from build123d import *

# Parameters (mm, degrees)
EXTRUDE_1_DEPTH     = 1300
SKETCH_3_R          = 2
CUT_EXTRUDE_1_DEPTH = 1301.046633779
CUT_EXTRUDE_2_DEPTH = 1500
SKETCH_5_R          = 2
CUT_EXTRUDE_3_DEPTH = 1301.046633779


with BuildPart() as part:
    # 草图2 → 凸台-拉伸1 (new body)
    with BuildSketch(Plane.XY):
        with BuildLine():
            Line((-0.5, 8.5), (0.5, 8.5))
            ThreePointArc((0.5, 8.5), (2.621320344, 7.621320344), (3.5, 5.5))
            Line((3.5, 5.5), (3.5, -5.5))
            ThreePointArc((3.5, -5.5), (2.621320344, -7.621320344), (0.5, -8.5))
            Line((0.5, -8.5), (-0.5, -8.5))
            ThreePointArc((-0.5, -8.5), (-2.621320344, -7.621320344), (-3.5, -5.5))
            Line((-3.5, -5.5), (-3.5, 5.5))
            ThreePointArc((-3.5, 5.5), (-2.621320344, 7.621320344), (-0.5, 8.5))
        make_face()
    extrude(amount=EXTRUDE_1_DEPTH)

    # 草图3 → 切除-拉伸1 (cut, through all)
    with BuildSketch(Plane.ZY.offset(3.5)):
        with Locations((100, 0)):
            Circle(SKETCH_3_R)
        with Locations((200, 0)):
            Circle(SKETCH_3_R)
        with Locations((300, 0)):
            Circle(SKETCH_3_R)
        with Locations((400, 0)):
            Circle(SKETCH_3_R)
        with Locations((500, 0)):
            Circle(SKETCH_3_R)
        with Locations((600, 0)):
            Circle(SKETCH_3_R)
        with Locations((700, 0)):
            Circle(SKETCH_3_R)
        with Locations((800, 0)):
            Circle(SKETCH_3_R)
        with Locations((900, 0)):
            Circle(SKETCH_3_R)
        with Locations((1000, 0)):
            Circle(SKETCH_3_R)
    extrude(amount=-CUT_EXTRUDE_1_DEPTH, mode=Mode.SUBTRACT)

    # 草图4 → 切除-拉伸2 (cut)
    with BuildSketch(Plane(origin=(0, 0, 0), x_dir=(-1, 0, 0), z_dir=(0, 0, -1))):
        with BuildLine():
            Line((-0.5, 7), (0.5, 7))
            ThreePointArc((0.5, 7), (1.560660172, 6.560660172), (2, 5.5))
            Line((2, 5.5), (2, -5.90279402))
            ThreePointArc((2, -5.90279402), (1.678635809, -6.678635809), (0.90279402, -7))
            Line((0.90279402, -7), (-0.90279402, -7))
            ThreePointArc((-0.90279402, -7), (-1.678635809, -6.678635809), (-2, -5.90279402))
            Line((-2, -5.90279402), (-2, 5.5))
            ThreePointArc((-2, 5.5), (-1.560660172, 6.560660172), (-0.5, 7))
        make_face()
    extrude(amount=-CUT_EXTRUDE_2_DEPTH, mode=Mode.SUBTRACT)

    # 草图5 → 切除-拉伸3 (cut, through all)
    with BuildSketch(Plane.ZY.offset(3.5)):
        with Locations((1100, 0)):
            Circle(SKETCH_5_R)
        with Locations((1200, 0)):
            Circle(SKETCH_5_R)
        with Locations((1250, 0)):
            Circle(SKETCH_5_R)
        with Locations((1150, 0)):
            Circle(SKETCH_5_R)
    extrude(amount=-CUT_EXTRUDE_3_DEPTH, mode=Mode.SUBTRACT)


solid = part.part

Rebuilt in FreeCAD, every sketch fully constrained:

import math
import FreeCAD as App
import Part
import Sketcher

V = App.Vector

doc = App.newDocument("Part")
body = doc.addObject("PartDesign::Body", "Body")

# Sketch on XY plane
sketch1 = body.newObject("Sketcher::SketchObject", "Sketch")
sketch1.AttachmentSupport = (doc.getObject("XY_Plane"), [""])
sketch1.MapMode = "FlatFace"
sketch1.addGeometry(Part.LineSegment(V(0.5, 8.5, 0), V(-0.5, 8.5, 0)), False)
sketch1.addGeometry(Part.ArcOfCircle(Part.Circle(V(-0.5, 5.5, 0), V(0, 0, 1), 3), math.radians(90), math.radians(180)), False)
sketch1.addGeometry(Part.LineSegment(V(-3.5, 5.5, 0), V(-3.5, -5.5, 0)), False)
sketch1.addGeometry(Part.ArcOfCircle(Part.Circle(V(-0.5, -5.5, 0), V(0, 0, 1), 3), math.radians(180), math.radians(270)), False)
sketch1.addGeometry(Part.LineSegment(V(-0.5, -8.5, 0), V(0.5, -8.5, 0)), False)
sketch1.addGeometry(Part.ArcOfCircle(Part.Circle(V(0.5, -5.5, 0), V(0, 0, 1), 3), math.radians(-90), math.radians(0)), False)
sketch1.addGeometry(Part.LineSegment(V(3.5, -5.5, 0), V(3.5, 5.5, 0)), False)
sketch1.addGeometry(Part.ArcOfCircle(Part.Circle(V(0.5, 5.5, 0), V(0, 0, 1), 3), math.radians(0), math.radians(90)), False)
sketch1.addConstraint(Sketcher.Constraint("Tangent", 0, 2, 1, 1))
sketch1.addConstraint(Sketcher.Constraint("Tangent", 1, 2, 2, 1))
sketch1.addConstraint(Sketcher.Constraint("Tangent", 2, 2, 3, 1))
sketch1.addConstraint(Sketcher.Constraint("Tangent", 3, 2, 4, 1))
sketch1.addConstraint(Sketcher.Constraint("Tangent", 4, 2, 5, 1))
sketch1.addConstraint(Sketcher.Constraint("Tangent", 5, 2, 6, 1))
sketch1.addConstraint(Sketcher.Constraint("Tangent", 6, 2, 7, 1))
sketch1.addConstraint(Sketcher.Constraint("Tangent", 7, 2, 0, 1))
sketch1.addConstraint(Sketcher.Constraint("Horizontal", 0))
sketch1.addConstraint(Sketcher.Constraint("Vertical", 2))
sketch1.addConstraint(Sketcher.Constraint("Horizontal", 4))
sketch1.addConstraint(Sketcher.Constraint("Vertical", 6))
sketch1.addConstraint(Sketcher.Constraint("Equal", 1, 3))
sketch1.addConstraint(Sketcher.Constraint("Equal", 3, 5))
sketch1.addConstraint(Sketcher.Constraint("Equal", 5, 7))
sketch1.addConstraint(Sketcher.Constraint("Symmetric", 1, 3, 5, 3, -1, 1))
sketch1.addConstraint(Sketcher.Constraint("Radius", 1, 3.0))
sketch1.addConstraint(Sketcher.Constraint("DistanceX", 0, 2, 0, 1, 1.0))
sketch1.addConstraint(Sketcher.Constraint("DistanceY", 2, 2, 2, 1, 11.0))
pad1 = body.newObject("PartDesign::Pad", "Pad")
pad1.Profile = sketch1
pad1.Length = 1300

# Sketch on YZ plane
sketch2 = body.newObject("Sketcher::SketchObject", "Sketch001")
sketch2.AttachmentSupport = (doc.getObject("YZ_Plane"), [""])
sketch2.MapMode = "FlatFace"
sketch2.AttachmentOffset = App.Placement(V(0, 0, -3.5), App.Rotation())
sketch2.addGeometry(Part.Circle(V(0, 100, 0), V(0, 0, 1), 2), False)
sketch2.addGeometry(Part.Circle(V(0, 200, 0), V(0, 0, 1), 2), False)
sketch2.addGeometry(Part.Circle(V(0, 300, 0), V(0, 0, 1), 2), False)
sketch2.addGeometry(Part.Circle(V(0, 400, 0), V(0, 0, 1), 2), False)
sketch2.addGeometry(Part.Circle(V(0, 500, 0), V(0, 0, 1), 2), False)
sketch2.addGeometry(Part.Circle(V(0, 600, 0), V(0, 0, 1), 2), False)
sketch2.addGeometry(Part.Circle(V(0, 700, 0), V(0, 0, 1), 2), False)
sketch2.addGeometry(Part.Circle(V(0, 800, 0), V(0, 0, 1), 2), False)
sketch2.addGeometry(Part.Circle(V(0, 900, 0), V(0, 0, 1), 2), False)
sketch2.addGeometry(Part.Circle(V(0, 1000, 0), V(0, 0, 1), 2), False)
sketch2.addConstraint(Sketcher.Constraint("Equal", 0, 1))
sketch2.addConstraint(Sketcher.Constraint("Equal", 1, 2))
sketch2.addConstraint(Sketcher.Constraint("Equal", 2, 3))
sketch2.addConstraint(Sketcher.Constraint("Equal", 3, 4))
sketch2.addConstraint(Sketcher.Constraint("Equal", 4, 5))
sketch2.addConstraint(Sketcher.Constraint("Equal", 5, 6))
sketch2.addConstraint(Sketcher.Constraint("Equal", 6, 7))
sketch2.addConstraint(Sketcher.Constraint("Equal", 7, 8))
sketch2.addConstraint(Sketcher.Constraint("Equal", 8, 9))
sketch2.addConstraint(Sketcher.Constraint("PointOnObject", 0, 3, -2))
sketch2.addConstraint(Sketcher.Constraint("PointOnObject", 1, 3, -2))
sketch2.addConstraint(Sketcher.Constraint("PointOnObject", 2, 3, -2))
sketch2.addConstraint(Sketcher.Constraint("PointOnObject", 3, 3, -2))
sketch2.addConstraint(Sketcher.Constraint("PointOnObject", 4, 3, -2))
sketch2.addConstraint(Sketcher.Constraint("PointOnObject", 5, 3, -2))
sketch2.addConstraint(Sketcher.Constraint("PointOnObject", 6, 3, -2))
sketch2.addConstraint(Sketcher.Constraint("PointOnObject", 7, 3, -2))
sketch2.addConstraint(Sketcher.Constraint("PointOnObject", 8, 3, -2))
sketch2.addConstraint(Sketcher.Constraint("PointOnObject", 9, 3, -2))
sketch2.addConstraint(Sketcher.Constraint("Diameter", 0, 4.0))
sketch2.addConstraint(Sketcher.Constraint("DistanceY", -1, 1, 0, 3, 100.0))
sketch2.addConstraint(Sketcher.Constraint("DistanceY", -1, 1, 1, 3, 200.0))
sketch2.addConstraint(Sketcher.Constraint("DistanceY", -1, 1, 2, 3, 300.0))
sketch2.addConstraint(Sketcher.Constraint("DistanceY", -1, 1, 3, 3, 400.0))
sketch2.addConstraint(Sketcher.Constraint("DistanceY", -1, 1, 4, 3, 500.0))
sketch2.addConstraint(Sketcher.Constraint("DistanceY", -1, 1, 5, 3, 600.0))
sketch2.addConstraint(Sketcher.Constraint("DistanceY", -1, 1, 6, 3, 700.0))
sketch2.addConstraint(Sketcher.Constraint("DistanceY", -1, 1, 7, 3, 800.0))
sketch2.addConstraint(Sketcher.Constraint("DistanceY", -1, 1, 8, 3, 900.0))
sketch2.addConstraint(Sketcher.Constraint("DistanceY", -1, 1, 9, 3, 1000.0))
pocket1 = body.newObject("PartDesign::Pocket", "Pocket")
pocket1.Profile = sketch2
pocket1.Type = "ThroughAll"
pocket1.Reversed = True

# Sketch on XY plane
sketch3 = body.newObject("Sketcher::SketchObject", "Sketch002")
sketch3.AttachmentSupport = (doc.getObject("XY_Plane"), [""])
sketch3.MapMode = "FlatFace"
sketch3.addGeometry(Part.LineSegment(V(-0.5, 7, 0), V(0.5, 7, 0)), False)
sketch3.addGeometry(Part.ArcOfCircle(Part.Circle(V(0.5, 5.5, 0), V(0, 0, 1), 1.5), math.radians(0), math.radians(90)), False)
sketch3.addGeometry(Part.LineSegment(V(2, 5.5, 0), V(2, -5.9, 0)), False)
sketch3.addGeometry(Part.ArcOfCircle(Part.Circle(V(0.9, -5.9, 0), V(0, 0, 1), 1.1), math.radians(-90), math.radians(0)), False)
sketch3.addGeometry(Part.LineSegment(V(0.9, -7, 0), V(-0.9, -7, 0)), False)
sketch3.addGeometry(Part.ArcOfCircle(Part.Circle(V(-0.9, -5.9, 0), V(0, 0, 1), 1.1), math.radians(180), math.radians(270)), False)
sketch3.addGeometry(Part.LineSegment(V(-2, -5.9, 0), V(-2, 5.5, 0)), False)
sketch3.addGeometry(Part.ArcOfCircle(Part.Circle(V(-0.5, 5.5, 0), V(0, 0, 1), 1.5), math.radians(90), math.radians(180)), False)
sketch3.addConstraint(Sketcher.Constraint("Tangent", 0, 2, 1, 2))
sketch3.addConstraint(Sketcher.Constraint("Tangent", 1, 1, 2, 1))
sketch3.addConstraint(Sketcher.Constraint("Tangent", 2, 2, 3, 2))
sketch3.addConstraint(Sketcher.Constraint("Tangent", 3, 1, 4, 1))
sketch3.addConstraint(Sketcher.Constraint("Tangent", 4, 2, 5, 2))
sketch3.addConstraint(Sketcher.Constraint("Tangent", 5, 1, 6, 1))
sketch3.addConstraint(Sketcher.Constraint("Tangent", 6, 2, 7, 2))
sketch3.addConstraint(Sketcher.Constraint("Tangent", 7, 1, 0, 1))
sketch3.addConstraint(Sketcher.Constraint("Horizontal", 0))
sketch3.addConstraint(Sketcher.Constraint("Vertical", 2))
sketch3.addConstraint(Sketcher.Constraint("Horizontal", 4))
sketch3.addConstraint(Sketcher.Constraint("Vertical", 6))
sketch3.addConstraint(Sketcher.Constraint("Equal", 3, 5))
sketch3.addConstraint(Sketcher.Constraint("Equal", 1, 7))
sketch3.addConstraint(Sketcher.Constraint("Radius", 1, 1.5))
sketch3.addConstraint(Sketcher.Constraint("DistanceX", 0, 1, 0, 2, 1.0))
sketch3.addConstraint(Sketcher.Constraint("DistanceY", -1, 1, 0, 2, 7.0))
sketch3.addConstraint(Sketcher.Constraint("DistanceX", -1, 1, 1, 1, 2.0))
sketch3.addConstraint(Sketcher.Constraint("DistanceY", 3, 1, -1, 1, 7.0))
sketch3.addConstraint(Sketcher.Constraint("Radius", 3, 1.097206))
pocket2 = body.newObject("PartDesign::Pocket", "Pocket001")
pocket2.Profile = sketch3
pocket2.Length = 1500
pocket2.Reversed = True

# Sketch on YZ plane
sketch4 = body.newObject("Sketcher::SketchObject", "Sketch003")
sketch4.AttachmentSupport = (doc.getObject("YZ_Plane"), [""])
sketch4.MapMode = "FlatFace"
sketch4.AttachmentOffset = App.Placement(V(0, 0, -3.5), App.Rotation())
sketch4.addGeometry(Part.Circle(V(0, 1100, 0), V(0, 0, 1), 2), False)
sketch4.addGeometry(Part.Circle(V(0, 1200, 0), V(0, 0, 1), 2), False)
sketch4.addGeometry(Part.Circle(V(0, 1250, 0), V(0, 0, 1), 2), False)
sketch4.addGeometry(Part.Circle(V(0, 1150, 0), V(0, 0, 1), 2), False)
sketch4.addConstraint(Sketcher.Constraint("Equal", 0, 1))
sketch4.addConstraint(Sketcher.Constraint("Equal", 1, 2))
sketch4.addConstraint(Sketcher.Constraint("Equal", 2, 3))
sketch4.addConstraint(Sketcher.Constraint("PointOnObject", 0, 3, -2))
sketch4.addConstraint(Sketcher.Constraint("PointOnObject", 1, 3, -2))
sketch4.addConstraint(Sketcher.Constraint("PointOnObject", 2, 3, -2))
sketch4.addConstraint(Sketcher.Constraint("PointOnObject", 3, 3, -2))
sketch4.addConstraint(Sketcher.Constraint("Diameter", 0, 4.0))
sketch4.addConstraint(Sketcher.Constraint("DistanceY", -1, 1, 0, 3, 1100.0))
sketch4.addConstraint(Sketcher.Constraint("DistanceY", -1, 1, 1, 3, 1200.0))
sketch4.addConstraint(Sketcher.Constraint("DistanceY", -1, 1, 2, 3, 1250.0))
sketch4.addConstraint(Sketcher.Constraint("DistanceY", -1, 1, 3, 3, 1150.0))
pocket3 = body.newObject("PartDesign::Pocket", "Pocket002")
pocket3.Profile = sketch4
pocket3.Type = "ThroughAll"
pocket3.Reversed = True

doc.recompute()
